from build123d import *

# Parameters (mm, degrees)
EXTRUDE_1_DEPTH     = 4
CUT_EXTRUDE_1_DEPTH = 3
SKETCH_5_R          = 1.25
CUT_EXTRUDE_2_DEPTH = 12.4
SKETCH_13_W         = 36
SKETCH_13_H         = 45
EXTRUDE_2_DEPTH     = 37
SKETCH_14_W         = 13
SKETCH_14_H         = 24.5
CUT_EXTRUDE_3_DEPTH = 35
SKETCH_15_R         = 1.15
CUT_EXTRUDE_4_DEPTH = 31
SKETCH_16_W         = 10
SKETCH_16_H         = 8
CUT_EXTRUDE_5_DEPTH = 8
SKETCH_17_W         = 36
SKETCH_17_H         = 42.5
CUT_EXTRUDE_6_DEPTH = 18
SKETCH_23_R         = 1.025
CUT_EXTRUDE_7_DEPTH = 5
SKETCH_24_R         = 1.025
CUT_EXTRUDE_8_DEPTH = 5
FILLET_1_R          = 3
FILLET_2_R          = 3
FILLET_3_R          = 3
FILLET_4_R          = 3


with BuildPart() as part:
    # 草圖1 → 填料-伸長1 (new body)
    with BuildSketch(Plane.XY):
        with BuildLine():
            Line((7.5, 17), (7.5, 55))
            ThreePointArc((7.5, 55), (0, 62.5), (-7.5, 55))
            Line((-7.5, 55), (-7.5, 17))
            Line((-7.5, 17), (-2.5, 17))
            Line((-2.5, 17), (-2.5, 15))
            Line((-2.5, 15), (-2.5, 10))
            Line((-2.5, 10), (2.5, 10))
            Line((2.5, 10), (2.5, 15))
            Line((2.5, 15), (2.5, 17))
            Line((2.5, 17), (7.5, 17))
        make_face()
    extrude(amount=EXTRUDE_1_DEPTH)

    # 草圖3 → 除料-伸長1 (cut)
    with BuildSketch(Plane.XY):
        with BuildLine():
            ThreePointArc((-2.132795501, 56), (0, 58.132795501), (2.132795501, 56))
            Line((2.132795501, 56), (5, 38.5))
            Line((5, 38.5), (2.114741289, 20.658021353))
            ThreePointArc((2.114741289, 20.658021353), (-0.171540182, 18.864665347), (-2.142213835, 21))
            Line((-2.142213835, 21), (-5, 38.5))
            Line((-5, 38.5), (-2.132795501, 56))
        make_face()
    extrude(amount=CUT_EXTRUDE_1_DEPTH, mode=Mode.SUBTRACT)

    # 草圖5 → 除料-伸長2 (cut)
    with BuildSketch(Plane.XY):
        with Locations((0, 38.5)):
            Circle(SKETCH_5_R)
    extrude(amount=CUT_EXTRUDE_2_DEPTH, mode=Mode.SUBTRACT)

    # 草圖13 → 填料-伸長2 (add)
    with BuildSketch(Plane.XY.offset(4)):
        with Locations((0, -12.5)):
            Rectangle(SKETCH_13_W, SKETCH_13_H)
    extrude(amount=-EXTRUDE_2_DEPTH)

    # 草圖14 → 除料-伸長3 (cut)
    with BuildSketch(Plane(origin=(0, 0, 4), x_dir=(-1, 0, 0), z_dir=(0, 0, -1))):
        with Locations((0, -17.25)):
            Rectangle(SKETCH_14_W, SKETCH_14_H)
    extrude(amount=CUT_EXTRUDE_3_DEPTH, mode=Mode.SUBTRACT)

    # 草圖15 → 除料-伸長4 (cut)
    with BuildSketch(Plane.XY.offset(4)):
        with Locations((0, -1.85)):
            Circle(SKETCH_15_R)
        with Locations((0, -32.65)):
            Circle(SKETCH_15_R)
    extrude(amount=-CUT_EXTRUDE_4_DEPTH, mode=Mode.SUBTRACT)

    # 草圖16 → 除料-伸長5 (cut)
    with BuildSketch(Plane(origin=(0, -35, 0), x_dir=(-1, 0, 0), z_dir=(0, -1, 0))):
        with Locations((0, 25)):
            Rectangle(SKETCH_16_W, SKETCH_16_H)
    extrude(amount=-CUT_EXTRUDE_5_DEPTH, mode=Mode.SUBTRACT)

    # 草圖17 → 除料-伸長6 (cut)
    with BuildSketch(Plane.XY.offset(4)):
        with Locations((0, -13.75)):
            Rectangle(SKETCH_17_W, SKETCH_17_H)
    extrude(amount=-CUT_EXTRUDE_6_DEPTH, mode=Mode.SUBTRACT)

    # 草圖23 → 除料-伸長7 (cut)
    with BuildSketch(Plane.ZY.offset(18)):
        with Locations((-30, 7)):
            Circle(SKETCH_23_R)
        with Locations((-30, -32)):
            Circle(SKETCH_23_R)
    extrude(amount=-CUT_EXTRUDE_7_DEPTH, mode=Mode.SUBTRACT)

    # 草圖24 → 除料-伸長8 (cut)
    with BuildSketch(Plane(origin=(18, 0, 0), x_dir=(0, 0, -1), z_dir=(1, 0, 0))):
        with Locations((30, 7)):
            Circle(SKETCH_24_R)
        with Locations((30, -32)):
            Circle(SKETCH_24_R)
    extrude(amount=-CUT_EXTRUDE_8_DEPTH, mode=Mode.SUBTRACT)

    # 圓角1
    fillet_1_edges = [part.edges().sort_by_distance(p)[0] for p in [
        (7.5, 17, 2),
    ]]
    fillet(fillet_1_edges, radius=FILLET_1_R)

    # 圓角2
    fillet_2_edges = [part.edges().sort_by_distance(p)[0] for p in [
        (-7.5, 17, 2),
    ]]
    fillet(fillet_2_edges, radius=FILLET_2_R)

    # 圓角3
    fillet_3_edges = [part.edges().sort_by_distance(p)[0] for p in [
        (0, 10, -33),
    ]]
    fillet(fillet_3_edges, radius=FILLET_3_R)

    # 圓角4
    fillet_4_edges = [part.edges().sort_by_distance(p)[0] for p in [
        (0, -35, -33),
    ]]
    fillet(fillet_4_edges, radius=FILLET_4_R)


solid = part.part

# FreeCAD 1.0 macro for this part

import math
import FreeCAD as App
import Part
import Sketcher

V = App.Vector


def edges_at(feature, points):
    """Names of the edges that pass closest to the given points."""
    edges = feature.Shape.Edges
    near = lambda p: min(range(len(edges)), key=lambda i: edges[i].distToShape(Part.Vertex(*p))[0])
    return sorted({f"Edge{near(p) + 1}" for p in points})

doc = App.newDocument("Part")
body = doc.addObject("PartDesign::Body", "Body")

# Sketch on XY plane
sketch1 = body.newObject("Sketcher::SketchObject", "Sketch")
sketch1.AttachmentSupport = (doc.getObject("XY_Plane"), [""])
sketch1.MapMode = "FlatFace"
sketch1.addGeometry([
    Part.LineSegment(V(8, 17, 0), V(8, 55, 0)),  # 0
    Part.ArcOfCircle(Part.Circle(V(0, 55, 0), V(0, 0, 1), 8), math.radians(0), math.radians(180)),  # 1
    Part.LineSegment(V(-8, 55, 0), V(-8, 17, 0)),  # 2
    Part.LineSegment(V(-8, 17, 0), V(-2, 17, 0)),  # 3
    Part.LineSegment(V(-2, 17, 0), V(-2, 10, 0)),  # 4
    Part.LineSegment(V(-2, 10, 0), V(2, 10, 0)),  # 5
    Part.LineSegment(V(2, 10, 0), V(2, 17, 0)),  # 6
    Part.LineSegment(V(2, 17, 0), V(8, 17, 0)),  # 7
], False)
sketch1.addConstraint([
    Sketcher.Constraint("Tangent", 0, 2, 1, 1),
    Sketcher.Constraint("Tangent", 1, 2, 2, 1),
    Sketcher.Constraint("Coincident", 2, 2, 3, 1),
    Sketcher.Constraint("Coincident", 3, 2, 4, 1),
    Sketcher.Constraint("Coincident", 4, 2, 5, 1),
    Sketcher.Constraint("Coincident", 5, 2, 6, 1),
    Sketcher.Constraint("Coincident", 6, 2, 7, 1),
    Sketcher.Constraint("Coincident", 7, 2, 0, 1),
    Sketcher.Constraint("Vertical", 0),
    Sketcher.Constraint("Vertical", 2),
    Sketcher.Constraint("Horizontal", 3),
    Sketcher.Constraint("Vertical", 4),
    Sketcher.Constraint("Horizontal", 5),
    Sketcher.Constraint("Vertical", 6),
    Sketcher.Constraint("Horizontal", 7),
    Sketcher.Constraint("Symmetric", 3, 2, 6, 2, -2),
    Sketcher.Constraint("PointOnObject", 1, 3, -2),
    Sketcher.Constraint("Equal", 3, 5),
    Sketcher.Constraint("Radius", 1, 7.5),
    Sketcher.Constraint("DistanceY", 0, 1, 0, 2, 38.0),
    Sketcher.Constraint("DistanceY", 4, 2, 4, 1, 7.0),
    Sketcher.Constraint("DistanceY", -1, 1, 1, 3, 55.0),
])
pad1 = body.newObject("PartDesign::Pad", "Pad")
pad1.Profile = sketch1
pad1.Length = 4

# Sketch on XY plane
sketch2 = body.newObject("Sketcher::SketchObject", "Sketch001")
sketch2.AttachmentSupport = (doc.getObject("XY_Plane"), [""])
sketch2.MapMode = "FlatFace"
sketch2.addGeometry([
    Part.ArcOfCircle(Part.Circle(V(0, 56, 0), V(0, 0, 1), 2.1), math.radians(0), math.radians(180)),  # 0
    Part.LineSegment(V(-2.1, 56, 0), V(-5, 38.5, 0)),  # 1
    Part.LineSegment(V(-5, 38.5, 0), V(-2.1, 21, 0)),  # 2
    Part.ArcOfCircle(Part.Circle(V(0, 21, 0), V(0, 0, 1), 2.1), math.radians(180), math.radians(351)),  # 3
    Part.LineSegment(V(2.1, 20.7, 0), V(5, 38.5, 0)),  # 4
    Part.LineSegment(V(5, 38.5, 0), V(2.1, 56, 0)),  # 5
], False)
sketch2.addConstraint([
    Sketcher.Constraint("Coincident", 0, 2, 1, 1),
    Sketcher.Constraint("Coincident", 1, 2, 2, 1),
    Sketcher.Constraint("Coincident", 2, 2, 3, 1),
    Sketcher.Constraint("Tangent", 3, 2, 4, 1),
    Sketcher.Constraint("Coincident", 4, 2, 5, 1),
    Sketcher.Constraint("Coincident", 5, 2, 0, 1),
    Sketcher.Constraint("Symmetric", 1, 2, 4, 2, -2),
    Sketcher.Constraint("Symmetric", 0, 2, 5, 2, -2),
    Sketcher.Constraint("PointOnObject", 3, 3, -2),
    Sketcher.Constraint("Horizontal", 3, 3, 2, 2),
    Sketcher.Constraint("DistanceY", -1, 1, 0, 3, 56.0),
    Sketcher.Constraint("DistanceY", -1, 1, 3, 3, 21.0),
    Sketcher.Constraint("DistanceY", -1, 1, 0, 2, 56.0),
    Sketcher.Constraint("DistanceX", 1, 2, -1, 1, 5.0),
    Sketcher.Constraint("DistanceY", -1, 1, 1, 2, 38.5),
    Sketcher.Constraint("Radius", 0, 2.132796),
    Sketcher.Constraint("Radius", 3, 2.142214),
])
pocket1 = body.newObject("PartDesign::Pocket", "Pocket")
pocket1.Profile = sketch2
pocket1.Length = 3
pocket1.Reversed = True

# Sketch on XY plane
sketch3 = body.newObject("Sketcher::SketchObject", "Sketch002")
sketch3.AttachmentSupport = (doc.getObject("XY_Plane"), [""])
sketch3.MapMode = "FlatFace"
sketch3.addGeometry(Part.Circle(V(0, 38.5, 0), V(0, 0, 1), 1.2), False)
sketch3.addConstraint([
    Sketcher.Constraint("PointOnObject", 0, 3, -2),
    Sketcher.Constraint("Diameter", 0, 2.5),
    Sketcher.Constraint("DistanceY", -1, 1, 0, 3, 38.5),
])
pocket2 = body.newObject("PartDesign::Pocket", "Pocket001")
pocket2.Profile = sketch3
pocket2.Length = 12.4
pocket2.Reversed = True

# Sketch on XY plane
sketch4 = body.newObject("Sketcher::SketchObject", "Sketch003")
sketch4.AttachmentSupport = (doc.getObject("XY_Plane"), [""])
sketch4.MapMode = "FlatFace"
sketch4.AttachmentOffset = App.Placement(V(0, 0, 4), App.Rotation())
sketch4.addGeometry([
    Part.LineSegment(V(-18, 10, 0), V(-18, -35, 0)),
    Part.LineSegment(V(-18, -35, 0), V(18, -35, 0)),
    Part.LineSegment(V(18, -35, 0), V(18, 10, 0)),
    Part.LineSegment(V(18, 10, 0), V(-18, 10, 0)),
], False)
sketch4.addConstraint([
    Sketcher.Constraint("Coincident", 0, 2, 1, 1),
    Sketcher.Constraint("Coincident", 1, 2, 2, 1),
    Sketcher.Constraint("Coincident", 2, 2, 3, 1),
    Sketcher.Constraint("Coincident", 3, 2, 0, 1),
    Sketcher.Constraint("Vertical", 0),
    Sketcher.Constraint("Horizontal", 1),
    Sketcher.Constraint("Vertical", 2),
    Sketcher.Constraint("Horizontal", 3),
    Sketcher.Constraint("DistanceX", 1, 1, 1, 2, 36.0),
    Sketcher.Constraint("DistanceY", 0, 2, 0, 1, 45.0),
    Sketcher.Constraint("DistanceX", 0, 2, -1, 1, 18.0),
    Sketcher.Constraint("DistanceY", 0, 2, -1, 1, 35.0),
])
pad2 = body.newObject("PartDesign::Pad", "Pad001")
pad2.Profile = sketch4
pad2.Length = 37
pad2.Reversed = True

# Sketch on XY plane
sketch5 = body.newObject("Sketcher::SketchObject", "Sketch004")
sketch5.AttachmentSupport = (doc.getObject("XY_Plane"), [""])
sketch5.MapMode = "FlatFace"
sketch5.AttachmentOffset = App.Placement(V(0, 0, 4), App.Rotation())
sketch5.addGeometry([
    Part.LineSegment(V(6, -5, 0), V(6, -30, 0)),
    Part.LineSegment(V(6, -30, 0), V(-6, -30, 0)),
    Part.LineSegment(V(-6, -30, 0), V(-6, -5, 0)),
    Part.LineSegment(V(-6, -5, 0), V(6, -5, 0)),
], False)
sketch5.addConstraint([
    Sketcher.Constraint("Coincident", 0, 2, 1, 1),
    Sketcher.Constraint("Coincident", 1, 2, 2, 1),
    Sketcher.Constraint("Coincident", 2, 2, 3, 1),
    Sketcher.Constraint("Coincident", 3, 2, 0, 1),
    Sketcher.Constraint("Vertical", 0),
    Sketcher.Constraint("Horizontal", 1),
    Sketcher.Constraint("Vertical", 2),
    Sketcher.Constraint("Horizontal", 3),
    Sketcher.Constraint("DistanceX", 1, 2, 1, 1, 13.0),
    Sketcher.Constraint("DistanceY", 0, 2, 0, 1, 24.5),
    Sketcher.Constraint("DistanceY", 2, 2, -1, 1, 5.0),
    Sketcher.Constraint("DistanceX", -1, 1, 0, 2, 6.5),
])
pocket3 = body.newObject("PartDesign::Pocket", "Pocket002")
pocket3.Profile = sketch5
pocket3.Length = 35

# Sketch on XY plane
sketch6 = body.newObject("Sketcher::SketchObject", "Sketch005")
sketch6.AttachmentSupport = (doc.getObject("XY_Plane"), [""])
sketch6.MapMode = "FlatFace"
sketch6.AttachmentOffset = App.Placement(V(0, 0, 4), App.Rotation())
sketch6.addGeometry([
    Part.Circle(V(0, -1.9, 0), V(0, 0, 1), 1.1),
    Part.Circle(V(0, -32.6, 0), V(0, 0, 1), 1.1),
], False)
sketch6.addConstraint([
    Sketcher.Constraint("Equal", 0, 1),
    Sketcher.Constraint("PointOnObject", 0, 3, -2),
    Sketcher.Constraint("PointOnObject", 1, 3, -2),
    Sketcher.Constraint("Diameter", 0, 2.3),
    Sketcher.Constraint("DistanceY", 1, 3, 0, 3, 30.8),
    Sketcher.Constraint("DistanceY", 0, 3, -1, 1, 1.85),
])
pocket4 = body.newObject("PartDesign::Pocket", "Pocket003")
pocket4.Profile = sketch6
pocket4.Length = 31

# Sketch on XZ plane
sketch7 = body.newObject("Sketcher::SketchObject", "Sketch006")
sketch7.AttachmentSupport = (doc.getObject("XZ_Plane"), [""])
sketch7.MapMode = "FlatFace"
sketch7.AttachmentOffset = App.Placement(V(0, 0, 35), App.Rotation())
sketch7.addGeometry([
    Part.LineSegment(V(5, -29, 0), V(5, -21, 0)),
    Part.LineSegment(V(5, -21, 0), V(-5, -21, 0)),
    Part.LineSegment(V(-5, -21, 0), V(-5, -29, 0)),
    Part.LineSegment(V(-5, -29, 0), V(5, -29, 0)),
], False)
sketch7.addConstraint([
    Sketcher.Constraint("Coincident", 0, 2, 1, 1),
    Sketcher.Constraint("Coincident", 1, 2, 2, 1),
    Sketcher.Constraint("Coincident", 2, 2, 3, 1),
    Sketcher.Constraint("Coincident", 3, 2, 0, 1),
    Sketcher.Constraint("Vertical", 0),
    Sketcher.Constraint("Horizontal", 1),
    Sketcher.Constraint("Vertical", 2),
    Sketcher.Constraint("Horizontal", 3),
    Sketcher.Constraint("DistanceX", 1, 2, 1, 1, 10.0),
    Sketcher.Constraint("DistanceY", 0, 1, 0, 2, 8.0),
    Sketcher.Constraint("DistanceX", -1, 1, 0, 2, 5.0),
    Sketcher.Constraint("DistanceY", 0, 2, -1, 1, 21.0),
])
pocket5 = body.newObject("PartDesign::Pocket", "Pocket004")
pocket5.Profile = sketch7
pocket5.Length = 8

# Sketch on XY plane
sketch8 = body.newObject("Sketcher::SketchObject", "Sketch007")
sketch8.AttachmentSupport = (doc.getObject("XY_Plane"), [""])
sketch8.MapMode = "FlatFace"
sketch8.AttachmentOffset = App.Placement(V(0, 0, 4), App.Rotation())
sketch8.addGeometry([
    Part.LineSegment(V(-18, 8, 0), V(-18, -35, 0)),
    Part.LineSegment(V(-18, -35, 0), V(18, -35, 0)),
    Part.LineSegment(V(18, -35, 0), V(18, 8, 0)),
    Part.LineSegment(V(18, 8, 0), V(-18, 8, 0)),
], False)
sketch8.addConstraint([
    Sketcher.Constraint("Coincident", 0, 2, 1, 1),
    Sketcher.Constraint("Coincident", 1, 2, 2, 1),
    Sketcher.Constraint("Coincident", 2, 2, 3, 1),
    Sketcher.Constraint("Coincident", 3, 2, 0, 1),
    Sketcher.Constraint("Vertical", 0),
    Sketcher.Constraint("Horizontal", 1),
    Sketcher.Constraint("Vertical", 2),
    Sketcher.Constraint("Horizontal", 3),
    Sketcher.Constraint("DistanceX", 1, 1, 1, 2, 36.0),
    Sketcher.Constraint("DistanceY", 0, 2, 0, 1, 42.5),
    Sketcher.Constraint("DistanceX", 0, 2, -1, 1, 18.0),
    Sketcher.Constraint("DistanceY", 0, 2, -1, 1, 35.0),
])
pocket6 = body.newObject("PartDesign::Pocket", "Pocket005")
pocket6.Profile = sketch8
pocket6.Length = 18

# Sketch on YZ plane
sketch9 = body.newObject("Sketcher::SketchObject", "Sketch008")
sketch9.AttachmentSupport = (doc.getObject("YZ_Plane"), [""])
sketch9.MapMode = "FlatFace"
sketch9.AttachmentOffset = App.Placement(V(0, 0, -18), App.Rotation())
sketch9.addGeometry([
    Part.Circle(V(7, -30, 0), V(0, 0, 1), 1),
    Part.Circle(V(-32, -30, 0), V(0, 0, 1), 1),
], False)
sketch9.addConstraint([
    Sketcher.Constraint("Equal", 0, 1),
    Sketcher.Constraint("Horizontal", 0, 3, 1, 3),
    Sketcher.Constraint("Diameter", 0, 2.05),
    Sketcher.Constraint("DistanceX", -1, 1, 0, 3, 7.0),
    Sketcher.Constraint("DistanceY", 0, 3, -1, 1, 30.0),
    Sketcher.Constraint("DistanceX", 1, 3, -1, 1, 32.0),
])
pocket7 = body.newObject("PartDesign::Pocket", "Pocket006")
pocket7.Profile = sketch9
pocket7.Length = 5
pocket7.Reversed = True

# Sketch on YZ plane
sketch10 = body.newObject("Sketcher::SketchObject", "Sketch009")
sketch10.AttachmentSupport = (doc.getObject("YZ_Plane"), [""])
sketch10.MapMode = "FlatFace"
sketch10.AttachmentOffset = App.Placement(V(0, 0, 18), App.Rotation())
sketch10.addGeometry([
    Part.Circle(V(7, -30, 0), V(0, 0, 1), 1),
    Part.Circle(V(-32, -30, 0), V(0, 0, 1), 1),
], False)
sketch10.addConstraint([
    Sketcher.Constraint("Equal", 0, 1),
    Sketcher.Constraint("Horizontal", 0, 3, 1, 3),
    Sketcher.Constraint("Diameter", 0, 2.05),
    Sketcher.Constraint("DistanceX", -1, 1, 0, 3, 7.0),
    Sketcher.Constraint("DistanceY", 0, 3, -1, 1, 30.0),
    Sketcher.Constraint("DistanceX", 1, 3, -1, 1, 32.0),
])
pocket8 = body.newObject("PartDesign::Pocket", "Pocket007")
pocket8.Profile = sketch10
pocket8.Length = 5
doc.recompute()

fillet = body.newObject("PartDesign::Fillet", "Fillet")
fillet.Base = (pocket8, edges_at(pocket8, [(7.5, 17, 2)]))
fillet.Radius = 3
doc.recompute()

fillet2 = body.newObject("PartDesign::Fillet", "Fillet001")
fillet2.Base = (fillet, edges_at(fillet, [(-7.5, 17, 2)]))
fillet2.Radius = 3
doc.recompute()

fillet3 = body.newObject("PartDesign::Fillet", "Fillet002")
fillet3.Base = (fillet2, edges_at(fillet2, [(0, 10, -33)]))
fillet3.Radius = 3
doc.recompute()

fillet4 = body.newObject("PartDesign::Fillet", "Fillet003")
fillet4.Base = (fillet3, edges_at(fillet3, [(0, -35, -33)]))
fillet4.Radius = 3

doc.recompute()
